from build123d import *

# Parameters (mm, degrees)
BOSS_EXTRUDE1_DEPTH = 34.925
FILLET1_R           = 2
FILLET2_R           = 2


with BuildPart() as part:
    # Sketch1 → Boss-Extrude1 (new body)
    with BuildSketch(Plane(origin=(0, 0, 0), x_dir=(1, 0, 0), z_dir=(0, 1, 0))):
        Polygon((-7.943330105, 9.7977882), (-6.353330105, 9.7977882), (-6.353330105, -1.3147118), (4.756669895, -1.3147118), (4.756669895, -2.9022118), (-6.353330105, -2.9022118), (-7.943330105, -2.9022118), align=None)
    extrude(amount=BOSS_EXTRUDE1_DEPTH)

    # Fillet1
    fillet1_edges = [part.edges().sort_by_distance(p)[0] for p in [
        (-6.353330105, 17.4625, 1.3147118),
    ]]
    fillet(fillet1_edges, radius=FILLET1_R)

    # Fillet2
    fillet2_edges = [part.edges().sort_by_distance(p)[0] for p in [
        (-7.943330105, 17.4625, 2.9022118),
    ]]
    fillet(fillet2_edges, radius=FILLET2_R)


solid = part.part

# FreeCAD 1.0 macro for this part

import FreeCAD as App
import Part
import Sketcher
Q = App.Units.Quantity


def edges_at(feature, points):
    """Names of the edges that pass closest to the given points."""
    edges = feature.Shape.Edges
    near = lambda p: min(range(len(edges)), key=lambda i: edges[i].distToShape(Part.Vertex(*p))[0])
    return sorted({f"Edge{near(p) + 1}" for p in points})


def add_polygon(sketch, points):
    """Adds a closed chain of lines whose ends are joined by coincident constraints."""
    first, n = sketch.GeometryCount, len(points)
    for a, b in zip(points, points[1:] + points[:1]):
        sketch.addGeometry(Part.LineSegment(App.Vector(*a, 0), App.Vector(*b, 0)), False)
    for i in range(n):
        sketch.addConstraint(Sketcher.Constraint("Coincident", first + i, 2, first + (i + 1) % n, 1))

doc = App.newDocument("Part")
body = doc.addObject("PartDesign::Body", "Body")

# Sketch on XZ plane
sketch1 = body.newObject("Sketcher::SketchObject", "Sketch")
sketch1.AttachmentSupport = (doc.getObject("XZ_Plane"), [""])
sketch1.MapMode = "FlatFace"
add_polygon(sketch1, [(-6.4, -9.8), (-7.9, -9.8), (-7.9, 2.9), (4.8, 2.9), (4.8, 1.3), (-6.4, 1.3)])  # lines 0-5
sketch1.addConstraint(Sketcher.Constraint("Horizontal", 0))
sketch1.addConstraint(Sketcher.Constraint("Vertical", 1))
sketch1.addConstraint(Sketcher.Constraint("Horizontal", 2))
sketch1.addConstraint(Sketcher.Constraint("Vertical", 3))
sketch1.addConstraint(Sketcher.Constraint("Horizontal", 4))
sketch1.addConstraint(Sketcher.Constraint("Vertical", 5))
sketch1.addConstraint(Sketcher.Constraint("Equal", 2, 1))
sketch1.addConstraint(Sketcher.Constraint("DistanceX", 2, 1, 2, 2, Q("0.5 in")))
sketch1.addConstraint(Sketcher.Constraint("DistanceY", 3, 2, 3, 1, Q("0.0625 in")))
sketch1.addConstraint(Sketcher.Constraint("DistanceX", 0, 2, 0, 1, Q("1.59 mm")))
sketch1.addConstraint(Sketcher.Constraint("DistanceX", 0, 2, -1, 1, Q("7.94333 mm")))
sketch1.addConstraint(Sketcher.Constraint("DistanceY", 0, 2, -1, 1, Q("9.797788 mm")))
pad1 = body.newObject("PartDesign::Pad", "Pad")
pad1.Profile = sketch1
pad1.Length = Q("1.375 in")
pad1.Reversed = True
doc.recompute()

fillet = body.newObject("PartDesign::Fillet", "Fillet")
fillet.Base = (pad1, edges_at(pad1, [(-6.353, 17.462, 1.315)]))
fillet.Radius = 2
doc.recompute()

fillet2 = body.newObject("PartDesign::Fillet", "Fillet001")
fillet2.Base = (fillet, edges_at(fillet, [(-7.943, 17.462, 2.902)]))
fillet2.Radius = 2

doc.recompute()
